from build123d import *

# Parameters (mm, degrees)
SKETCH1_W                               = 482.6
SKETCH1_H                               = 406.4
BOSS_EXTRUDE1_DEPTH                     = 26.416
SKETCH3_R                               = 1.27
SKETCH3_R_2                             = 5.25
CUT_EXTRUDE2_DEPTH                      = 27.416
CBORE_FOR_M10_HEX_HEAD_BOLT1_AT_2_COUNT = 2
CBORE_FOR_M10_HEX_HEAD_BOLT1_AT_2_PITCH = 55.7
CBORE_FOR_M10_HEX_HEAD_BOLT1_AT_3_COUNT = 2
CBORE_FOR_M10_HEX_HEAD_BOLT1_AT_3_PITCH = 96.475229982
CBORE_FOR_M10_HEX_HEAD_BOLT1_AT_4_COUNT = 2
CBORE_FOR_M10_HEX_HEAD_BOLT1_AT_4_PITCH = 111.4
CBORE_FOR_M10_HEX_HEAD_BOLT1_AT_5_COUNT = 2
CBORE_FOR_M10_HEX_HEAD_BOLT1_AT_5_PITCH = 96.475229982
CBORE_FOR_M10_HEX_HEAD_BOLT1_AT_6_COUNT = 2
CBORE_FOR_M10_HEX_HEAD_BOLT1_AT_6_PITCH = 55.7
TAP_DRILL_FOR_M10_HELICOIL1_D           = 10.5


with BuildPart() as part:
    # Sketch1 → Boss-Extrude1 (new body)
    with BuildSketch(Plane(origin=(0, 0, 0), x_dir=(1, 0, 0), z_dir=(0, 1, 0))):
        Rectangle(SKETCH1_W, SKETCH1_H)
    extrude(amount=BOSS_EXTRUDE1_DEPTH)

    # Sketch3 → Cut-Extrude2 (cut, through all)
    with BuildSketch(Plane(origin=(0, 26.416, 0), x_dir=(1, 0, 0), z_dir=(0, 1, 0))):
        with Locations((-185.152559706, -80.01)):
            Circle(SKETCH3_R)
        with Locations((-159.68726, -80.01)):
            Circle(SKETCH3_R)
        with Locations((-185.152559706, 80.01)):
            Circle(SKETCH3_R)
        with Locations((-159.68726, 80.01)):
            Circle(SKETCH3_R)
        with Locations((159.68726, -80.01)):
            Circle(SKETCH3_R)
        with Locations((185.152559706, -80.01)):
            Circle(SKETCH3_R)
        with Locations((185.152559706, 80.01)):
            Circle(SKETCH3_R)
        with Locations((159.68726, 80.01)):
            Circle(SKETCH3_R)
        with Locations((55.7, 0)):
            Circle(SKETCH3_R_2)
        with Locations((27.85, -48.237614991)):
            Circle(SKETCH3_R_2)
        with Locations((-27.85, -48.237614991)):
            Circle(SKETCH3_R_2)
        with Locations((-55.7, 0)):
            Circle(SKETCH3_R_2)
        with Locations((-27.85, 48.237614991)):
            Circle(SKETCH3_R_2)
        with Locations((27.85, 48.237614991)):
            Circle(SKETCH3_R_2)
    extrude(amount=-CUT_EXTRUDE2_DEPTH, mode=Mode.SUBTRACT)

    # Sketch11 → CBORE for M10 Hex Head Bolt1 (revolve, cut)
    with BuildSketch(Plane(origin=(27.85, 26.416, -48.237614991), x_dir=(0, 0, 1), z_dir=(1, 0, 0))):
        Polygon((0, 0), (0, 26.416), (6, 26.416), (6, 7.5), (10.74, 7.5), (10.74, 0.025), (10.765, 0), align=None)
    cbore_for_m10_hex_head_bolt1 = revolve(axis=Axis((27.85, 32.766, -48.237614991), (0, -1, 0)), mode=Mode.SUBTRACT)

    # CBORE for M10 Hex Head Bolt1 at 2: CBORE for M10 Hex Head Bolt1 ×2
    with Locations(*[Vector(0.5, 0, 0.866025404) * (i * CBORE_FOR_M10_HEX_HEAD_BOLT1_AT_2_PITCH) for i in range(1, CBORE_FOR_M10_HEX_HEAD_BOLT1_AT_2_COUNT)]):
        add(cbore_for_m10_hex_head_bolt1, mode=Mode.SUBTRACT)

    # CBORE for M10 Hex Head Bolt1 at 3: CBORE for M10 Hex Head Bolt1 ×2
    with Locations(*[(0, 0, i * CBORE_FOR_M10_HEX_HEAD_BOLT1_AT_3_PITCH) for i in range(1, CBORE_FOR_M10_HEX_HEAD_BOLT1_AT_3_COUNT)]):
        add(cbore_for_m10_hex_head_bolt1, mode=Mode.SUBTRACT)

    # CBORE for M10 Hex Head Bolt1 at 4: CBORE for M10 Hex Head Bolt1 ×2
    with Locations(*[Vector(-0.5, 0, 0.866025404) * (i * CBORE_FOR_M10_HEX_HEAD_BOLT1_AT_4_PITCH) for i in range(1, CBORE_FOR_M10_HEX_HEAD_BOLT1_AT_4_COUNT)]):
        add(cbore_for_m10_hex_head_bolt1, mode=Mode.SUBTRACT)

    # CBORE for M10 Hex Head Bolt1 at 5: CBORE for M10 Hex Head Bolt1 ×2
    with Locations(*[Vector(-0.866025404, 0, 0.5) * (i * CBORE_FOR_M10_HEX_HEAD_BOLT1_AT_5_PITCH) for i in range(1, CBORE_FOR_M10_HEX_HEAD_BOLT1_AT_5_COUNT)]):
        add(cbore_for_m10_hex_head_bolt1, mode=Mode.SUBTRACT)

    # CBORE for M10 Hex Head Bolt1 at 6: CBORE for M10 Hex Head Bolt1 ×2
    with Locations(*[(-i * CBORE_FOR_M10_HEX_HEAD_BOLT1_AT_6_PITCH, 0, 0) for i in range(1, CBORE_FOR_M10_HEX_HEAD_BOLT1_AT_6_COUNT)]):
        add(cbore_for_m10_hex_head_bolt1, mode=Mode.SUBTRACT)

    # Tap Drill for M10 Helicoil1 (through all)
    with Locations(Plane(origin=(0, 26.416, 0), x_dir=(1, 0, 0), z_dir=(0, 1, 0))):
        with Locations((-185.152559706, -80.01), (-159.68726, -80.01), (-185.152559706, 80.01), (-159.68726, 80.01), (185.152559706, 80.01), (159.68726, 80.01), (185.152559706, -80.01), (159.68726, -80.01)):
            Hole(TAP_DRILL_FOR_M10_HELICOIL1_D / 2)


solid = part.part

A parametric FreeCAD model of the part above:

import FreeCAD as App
import Part
import Sketcher

V = App.Vector
Q = App.Units.Quantity


def add_polygon(sketch, points):
    """Adds a closed chain of lines whose ends are joined by coincident constraints."""
    first, n = sketch.GeometryCount, len(points)
    for a, b in zip(points, points[1:] + points[:1]):
        sketch.addGeometry(Part.LineSegment(App.Vector(*a, 0), App.Vector(*b, 0)), False)
    for i in range(n):
        sketch.addConstraint(Sketcher.Constraint("Coincident", first + i, 2, first + (i + 1) % n, 1))

doc = App.newDocument("Part")
body = doc.addObject("PartDesign::Body", "Body")

# Sketch on XZ plane
sketch1 = body.newObject("Sketcher::SketchObject", "Sketch")
sketch1.AttachmentSupport = (doc.getObject("XZ_Plane"), [""])
sketch1.MapMode = "FlatFace"
add_polygon(sketch1, [(-241, -203), (-241, 203), (241, 203), (241, -203)])  # lines 0-3
sketch1.addConstraint(Sketcher.Constraint("Vertical", 0))
sketch1.addConstraint(Sketcher.Constraint("Horizontal", 1))
sketch1.addConstraint(Sketcher.Constraint("Vertical", 2))
sketch1.addConstraint(Sketcher.Constraint("Horizontal", 3))
sketch1.addConstraint(Sketcher.Constraint("Symmetric", 0, 2, 2, 2, -1, 1))
sketch1.addConstraint(Sketcher.Constraint("DistanceX", 1, 1, 1, 2, Q("19 in")))
sketch1.addConstraint(Sketcher.Constraint("DistanceY", 0, 1, 0, 2, Q("16 in")))
pad1 = body.newObject("PartDesign::Pad", "Pad")
pad1.Profile = sketch1
pad1.Length = Q("1.04 in")
pad1.Reversed = True

# Sketch on XZ plane
sketch2 = body.newObject("Sketcher::SketchObject", "Sketch001")
sketch2.AttachmentSupport = (doc.getObject("XZ_Plane"), [""])
sketch2.MapMode = "FlatFace"
sketch2.AttachmentOffset = App.Placement(V(0, 0, -1.04 * 25.4), App.Rotation())
sketch2.addGeometry(Part.Circle(V(-185.2, 80, 0), V(0, 0, 1), 1.3), False)
sketch2.addGeometry(Part.Circle(V(-159.7, 80, 0), V(0, 0, 1), 1.3), False)
sketch2.addGeometry(Part.Circle(V(-185.2, -80, 0), V(0, 0, 1), 1.3), False)
sketch2.addGeometry(Part.Circle(V(-159.7, -80, 0), V(0, 0, 1), 1.3), False)
sketch2.addGeometry(Part.Circle(V(159.7, 80, 0), V(0, 0, 1), 1.3), False)
sketch2.addGeometry(Part.Circle(V(185.2, 80, 0), V(0, 0, 1), 1.3), False)
sketch2.addGeometry(Part.Circle(V(185.2, -80, 0), V(0, 0, 1), 1.3), False)
sketch2.addGeometry(Part.Circle(V(159.7, -80, 0), V(0, 0, 1), 1.3), False)
sketch2.addGeometry(Part.Circle(V(55.7, 0, 0), V(0, 0, 1), 5.2), False)
sketch2.addGeometry(Part.Circle(V(27.9, 48.2, 0), V(0, 0, 1), 5.2), False)
sketch2.addGeometry(Part.Circle(V(-27.9, 48.2, 0), V(0, 0, 1), 5.2), False)
sketch2.addGeometry(Part.Circle(V(-55.7, 0, 0), V(0, 0, 1), 5.2), False)
sketch2.addGeometry(Part.Circle(V(-27.9, -48.2, 0), V(0, 0, 1), 5.2), False)
sketch2.addGeometry(Part.Circle(V(27.9, -48.2, 0), V(0, 0, 1), 5.2), False)
sketch2.addConstraint(Sketcher.Constraint("Equal", 0, 1))
sketch2.addConstraint(Sketcher.Constraint("Equal", 1, 2))
sketch2.addConstraint(Sketcher.Constraint("Equal", 2, 3))
sketch2.addConstraint(Sketcher.Constraint("Equal", 3, 4))
sketch2.addConstraint(Sketcher.Constraint("Equal", 4, 5))
sketch2.addConstraint(Sketcher.Constraint("Equal", 5, 6))
sketch2.addConstraint(Sketcher.Constraint("Equal", 6, 7))
sketch2.addConstraint(Sketcher.Constraint("Equal", 8, 9))
sketch2.addConstraint(Sketcher.Constraint("Equal", 9, 10))
sketch2.addConstraint(Sketcher.Constraint("Equal", 10, 11))
sketch2.addConstraint(Sketcher.Constraint("Equal", 11, 12))
sketch2.addConstraint(Sketcher.Constraint("Equal", 12, 13))
sketch2.addConstraint(Sketcher.Constraint("Symmetric", 3, 3, 4, 3, -1, 1))
sketch2.addConstraint(Sketcher.Constraint("Symmetric", 2, 3, 5, 3, -1, 1))
sketch2.addConstraint(Sketcher.Constraint("Symmetric", 0, 3, 6, 3, -1, 1))
sketch2.addConstraint(Sketcher.Constraint("Symmetric", 1, 3, 7, 3, -1, 1))
sketch2.addConstraint(Sketcher.Constraint("Symmetric", 8, 3, 11, 3, -1, 1))
sketch2.addConstraint(Sketcher.Constraint("Symmetric", 9, 3, 12, 3, -1, 1))
sketch2.addConstraint(Sketcher.Constraint("Symmetric", 10, 3, 13, 3, -1, 1))
sketch2.addConstraint(Sketcher.Constraint("Symmetric", 1, 3, 4, 3, -2))
sketch2.addConstraint(Sketcher.Constraint("Symmetric", 0, 3, 5, 3, -2))
sketch2.addConstraint(Sketcher.Constraint("Symmetric", 9, 3, 10, 3, -2))
sketch2.addConstraint(Sketcher.Constraint("PointOnObject", 8, 3, -1))
sketch2.addConstraint(Sketcher.Constraint("Horizontal", 0, 3, 1, 3))
sketch2.addConstraint(Sketcher.Constraint("Diameter", 0, Q("0.1 in")))
sketch2.addConstraint(Sketcher.Constraint("DistanceY", 2, 3, 0, 3, Q("6.3 in")))
sketch2.addConstraint(Sketcher.Constraint("Diameter", 8, Q("10.5 mm")))
sketch2.addConstraint(Sketcher.Constraint("DistanceX", 1, 3, -1, 1, Q("6.2869 in")))
sketch2.addConstraint(Sketcher.Constraint("DistanceX", -1, 1, 8, 3, Q("55.7 mm")))
sketch2.addConstraint(Sketcher.Constraint("DistanceX", -1, 1, 9, 3, Q("27.85 mm")))
sketch2.addConstraint(Sketcher.Constraint("DistanceX", 0, 3, 1, 3, Q("25.4653 mm")))
sketch2.addConstraint(Sketcher.Constraint("DistanceY", 12, 3, 10, 3, Q("96.47523 mm")))
pocket1 = body.newObject("PartDesign::Pocket", "Pocket")
pocket1.Profile = sketch2
pocket1.Type = "ThroughAll"
pocket1.Reversed = True

# Sketch on YZ plane
sketch3 = body.newObject("Sketcher::SketchObject", "Sketch002")
sketch3.AttachmentSupport = (doc.getObject("YZ_Plane"), [""])
sketch3.MapMode = "FlatFace"
sketch3.AttachmentOffset = App.Placement(V(0, 0, 27.85), App.Rotation())
add_polygon(sketch3, [(0, -48.238), (26.416, -48.238), (26.416, -37.473), (26.391, -37.498), (18.916, -37.498), (18.916, -42.238), (0, -42.238)])  # lines 0-6
sketch3.addGeometry(Part.LineSegment(V(26.416, -48.238, 0), V(0, -48.238, 0)), True)  # axis
sketch3.addConstraint(Sketcher.Constraint("Horizontal", 0))
sketch3.addConstraint(Sketcher.Constraint("Vertical", 1))
sketch3.addConstraint(Sketcher.Constraint("Horizontal", 3))
sketch3.addConstraint(Sketcher.Constraint("Vertical", 4))
sketch3.addConstraint(Sketcher.Constraint("Horizontal", 5))
sketch3.addConstraint(Sketcher.Constraint("Vertical", 6))
sketch3.addConstraint(Sketcher.Constraint("Horizontal", 7))
sketch3.addConstraint(Sketcher.Constraint("Coincident", 7, 1, 0, 2))
sketch3.addConstraint(Sketcher.Constraint("PointOnObject", 5, 2, -2))
sketch3.addConstraint(Sketcher.Constraint("PointOnObject", 7, 2, -2))
sketch3.addConstraint(Sketcher.Constraint("Angle", 2, Q("-135 deg")))
sketch3.addConstraint(Sketcher.Constraint("DistanceX", 0, 1, 0, 2, Q("1.04 in")))
sketch3.addConstraint(Sketcher.Constraint("DistanceX", 3, 2, 3, 1, Q("7.475 mm")))
sketch3.addConstraint(Sketcher.Constraint("DistanceX", 5, 2, 5, 1, Q("18.916 mm")))
sketch3.addConstraint(Sketcher.Constraint("DistanceY", 1, 1, 1, 2, Q("10.765 mm")))
sketch3.addConstraint(Sketcher.Constraint("DistanceY", 4, 2, 4, 1, Q("4.74 mm")))
sketch3.addConstraint(Sketcher.Constraint("DistanceY", 1, 2, -1, 1, Q("1.4752998 in")))
groove = body.newObject("PartDesign::Groove", "Groove")
groove.Profile = sketch3
groove.ReferenceAxis = (sketch3, ["Axis0"])
groove.Angle = 360
doc.recompute()

datumline = body.newObject("PartDesign::Line", "DatumLine")
datumline.Placement = App.Placement(V(0, 0, 0), App.Rotation(V(0, 0, 1), V(0.5, 0, 0.866025404)))
linearpattern = body.newObject("PartDesign::LinearPattern", "LinearPattern")
linearpattern.Originals = [groove]
linearpattern.Direction = (datumline, [""])
linearpattern.Mode = "offset"
linearpattern.Offset = 55.7
linearpattern.Occurrences = 2
body.Tip = linearpattern
doc.recompute()

linearpattern2 = body.newObject("PartDesign::LinearPattern", "LinearPattern001")
linearpattern2.Originals = [groove]
linearpattern2.Direction = (doc.getObject("Z_Axis"), [""])
linearpattern2.Mode = "offset"
linearpattern2.Offset = 96.47523
linearpattern2.Occurrences = 2
body.Tip = linearpattern2
doc.recompute()

datumline2 = body.newObject("PartDesign::Line", "DatumLine001")
datumline2.Placement = App.Placement(V(0, 0, 0), App.Rotation(V(0, 0, 1), V(-0.5, 0, 0.866025404)))
linearpattern3 = body.newObject("PartDesign::LinearPattern", "LinearPattern002")
linearpattern3.Originals = [groove]
linearpattern3.Direction = (datumline2, [""])
linearpattern3.Mode = "offset"
linearpattern3.Offset = 111.4
linearpattern3.Occurrences = 2
body.Tip = linearpattern3
doc.recompute()

datumline3 = body.newObject("PartDesign::Line", "DatumLine002")
datumline3.Placement = App.Placement(V(0, 0, 0), App.Rotation(V(0, 0, 1), V(-0.866025404, 0, 0.5)))
linearpattern4 = body.newObject("PartDesign::LinearPattern", "LinearPattern003")
linearpattern4.Originals = [groove]
linearpattern4.Direction = (datumline3, [""])
linearpattern4.Mode = "offset"
linearpattern4.Offset = 96.47523
linearpattern4.Occurrences = 2
body.Tip = linearpattern4
doc.recompute()

linearpattern5 = body.newObject("PartDesign::LinearPattern", "LinearPattern004")
linearpattern5.Originals = [groove]
linearpattern5.Direction = (doc.getObject("X_Axis"), [""])
linearpattern5.Mode = "offset"
linearpattern5.Offset = 55.7
linearpattern5.Occurrences = 2
linearpattern5.Reversed = True
body.Tip = linearpattern5

# Sketch on XZ plane
sketch4 = body.newObject("Sketcher::SketchObject", "Sketch003")
sketch4.AttachmentSupport = (doc.getObject("XZ_Plane"), [""])
sketch4.MapMode = "FlatFace"
sketch4.AttachmentOffset = App.Placement(V(0, 0, -1.04 * 25.4), App.Rotation())
sketch4.addGeometry(Part.Circle(V(-185, 80, 0), V(0, 0, 1), 5), False)
sketch4.addGeometry(Part.Circle(V(-160, 80, 0), V(0, 0, 1), 5), False)
sketch4.addGeometry(Part.Circle(V(-185, -80, 0), V(0, 0, 1), 5), False)
sketch4.addGeometry(Part.Circle(V(-160, -80, 0), V(0, 0, 1), 5), False)
sketch4.addGeometry(Part.Circle(V(185, -80, 0), V(0, 0, 1), 5), False)
sketch4.addGeometry(Part.Circle(V(160, -80, 0), V(0, 0, 1), 5), False)
sketch4.addGeometry(Part.Circle(V(185, 80, 0), V(0, 0, 1), 5), False)
sketch4.addGeometry(Part.Circle(V(160, 80, 0), V(0, 0, 1), 5), False)
sketch4.addConstraint(Sketcher.Constraint("Equal", 0, 1))
sketch4.addConstraint(Sketcher.Constraint("Equal", 1, 2))
sketch4.addConstraint(Sketcher.Constraint("Equal", 2, 3))
sketch4.addConstraint(Sketcher.Constraint("Equal", 3, 4))
sketch4.addConstraint(Sketcher.Constraint("Equal", 4, 5))
sketch4.addConstraint(Sketcher.Constraint("Equal", 5, 6))
sketch4.addConstraint(Sketcher.Constraint("Equal", 6, 7))
sketch4.addConstraint(Sketcher.Constraint("Symmetric", 0, 3, 4, 3, -1, 1))
sketch4.addConstraint(Sketcher.Constraint("Symmetric", 1, 3, 5, 3, -1, 1))
sketch4.addConstraint(Sketcher.Constraint("Symmetric", 2, 3, 6, 3, -1, 1))
sketch4.addConstraint(Sketcher.Constraint("Symmetric", 3, 3, 7, 3, -1, 1))
sketch4.addConstraint(Sketcher.Constraint("Symmetric", 2, 3, 4, 3, -2))
sketch4.addConstraint(Sketcher.Constraint("Symmetric", 3, 3, 5, 3, -2))
sketch4.addConstraint(Sketcher.Constraint("Horizontal", 0, 3, 1, 3))
sketch4.addConstraint(Sketcher.Constraint("DistanceY", 2, 3, 0, 3, Q("6.3 in")))
sketch4.addConstraint(Sketcher.Constraint("Diameter", 0, Q("10.5 mm")))
sketch4.addConstraint(Sketcher.Constraint("DistanceX", 1, 3, -1, 1, Q("6.2869 in")))
sketch4.addConstraint(Sketcher.Constraint("DistanceX", 0, 3, 1, 3, Q("25.4653 mm")))
doc.recompute()
hole = body.newObject("PartDesign::Hole", "Hole")
hole.Profile = sketch4
hole.ThreadType = "None"
hole.Diameter = 10.5
hole.DepthType = "ThroughAll"
hole.Reversed = True

doc.recompute()
